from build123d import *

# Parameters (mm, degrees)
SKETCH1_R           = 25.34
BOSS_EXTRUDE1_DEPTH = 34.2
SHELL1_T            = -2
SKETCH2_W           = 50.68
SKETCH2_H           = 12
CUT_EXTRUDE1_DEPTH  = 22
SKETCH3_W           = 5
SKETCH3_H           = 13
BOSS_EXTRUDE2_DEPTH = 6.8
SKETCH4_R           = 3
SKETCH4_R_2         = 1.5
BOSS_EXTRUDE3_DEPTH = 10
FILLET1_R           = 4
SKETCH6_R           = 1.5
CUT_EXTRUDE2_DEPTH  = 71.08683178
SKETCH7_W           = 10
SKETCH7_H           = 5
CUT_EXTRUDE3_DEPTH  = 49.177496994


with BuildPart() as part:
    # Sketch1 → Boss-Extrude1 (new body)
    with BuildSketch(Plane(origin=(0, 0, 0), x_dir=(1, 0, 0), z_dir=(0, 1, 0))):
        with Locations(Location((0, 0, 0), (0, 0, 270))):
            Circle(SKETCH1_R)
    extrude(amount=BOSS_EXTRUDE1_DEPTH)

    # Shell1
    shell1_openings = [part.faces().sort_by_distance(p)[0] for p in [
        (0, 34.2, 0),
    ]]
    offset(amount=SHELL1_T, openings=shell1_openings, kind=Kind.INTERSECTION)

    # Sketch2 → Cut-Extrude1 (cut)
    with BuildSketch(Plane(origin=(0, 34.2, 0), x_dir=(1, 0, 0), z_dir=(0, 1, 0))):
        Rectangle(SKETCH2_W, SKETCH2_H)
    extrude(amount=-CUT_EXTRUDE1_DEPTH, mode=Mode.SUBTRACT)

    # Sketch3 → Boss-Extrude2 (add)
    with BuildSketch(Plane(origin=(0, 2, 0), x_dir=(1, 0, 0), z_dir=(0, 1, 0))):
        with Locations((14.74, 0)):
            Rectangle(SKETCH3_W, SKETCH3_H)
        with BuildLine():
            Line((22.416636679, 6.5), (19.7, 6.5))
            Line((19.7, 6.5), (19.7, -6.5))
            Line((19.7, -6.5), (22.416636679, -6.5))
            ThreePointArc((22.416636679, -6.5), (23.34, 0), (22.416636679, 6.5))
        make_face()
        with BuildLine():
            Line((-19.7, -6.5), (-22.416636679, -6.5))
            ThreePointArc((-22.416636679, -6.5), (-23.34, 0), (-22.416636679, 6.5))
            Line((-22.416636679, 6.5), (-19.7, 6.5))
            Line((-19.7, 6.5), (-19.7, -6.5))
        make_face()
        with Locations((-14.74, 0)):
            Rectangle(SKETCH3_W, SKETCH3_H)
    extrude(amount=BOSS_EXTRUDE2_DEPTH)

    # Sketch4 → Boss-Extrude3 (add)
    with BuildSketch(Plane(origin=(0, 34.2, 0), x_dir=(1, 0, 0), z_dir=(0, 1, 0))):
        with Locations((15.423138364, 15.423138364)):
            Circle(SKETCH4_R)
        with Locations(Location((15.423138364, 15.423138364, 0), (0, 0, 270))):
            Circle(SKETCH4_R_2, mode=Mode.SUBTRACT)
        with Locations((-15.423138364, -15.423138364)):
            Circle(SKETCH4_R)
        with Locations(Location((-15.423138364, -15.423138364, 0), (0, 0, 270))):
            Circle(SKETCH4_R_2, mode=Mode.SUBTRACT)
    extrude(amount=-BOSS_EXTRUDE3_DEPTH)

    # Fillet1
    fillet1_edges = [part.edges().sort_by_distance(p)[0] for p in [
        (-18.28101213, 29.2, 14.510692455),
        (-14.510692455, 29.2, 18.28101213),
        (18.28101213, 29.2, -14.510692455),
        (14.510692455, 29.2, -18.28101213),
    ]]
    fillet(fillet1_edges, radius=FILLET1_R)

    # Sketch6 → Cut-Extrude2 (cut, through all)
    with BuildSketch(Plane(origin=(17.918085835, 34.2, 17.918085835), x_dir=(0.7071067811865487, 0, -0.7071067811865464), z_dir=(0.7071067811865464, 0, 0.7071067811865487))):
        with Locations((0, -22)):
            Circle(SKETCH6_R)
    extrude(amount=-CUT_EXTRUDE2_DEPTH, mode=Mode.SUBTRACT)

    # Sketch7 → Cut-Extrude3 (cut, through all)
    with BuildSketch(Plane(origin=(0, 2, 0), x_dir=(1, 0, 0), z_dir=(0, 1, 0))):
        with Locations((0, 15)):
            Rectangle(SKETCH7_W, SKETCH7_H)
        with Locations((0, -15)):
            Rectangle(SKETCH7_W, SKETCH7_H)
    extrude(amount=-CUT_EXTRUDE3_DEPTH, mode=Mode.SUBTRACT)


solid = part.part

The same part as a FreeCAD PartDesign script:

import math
import FreeCAD as App
import Part
import Sketcher

V = App.Vector


def edges_at(feature, points):
    """Names of the edges that pass closest to the given points."""
    edges = feature.Shape.Edges
    near = lambda p: min(range(len(edges)), key=lambda i: edges[i].distToShape(Part.Vertex(*p))[0])
    return sorted({f"Edge{near(p) + 1}" for p in points})


def faces_at(feature, points):
    """Names of the faces that lie closest to the given points."""
    faces = feature.Shape.Faces
    near = lambda p: min(range(len(faces)), key=lambda i: faces[i].distToShape(Part.Vertex(*p))[0])
    return sorted({f"Face{near(p) + 1}" for p in points})


def add_polygon(sketch, points):
    """Adds a closed chain of lines whose ends are joined by coincident constraints."""
    first, n = sketch.GeometryCount, len(points)
    for a, b in zip(points, points[1:] + points[:1]):
        sketch.addGeometry(Part.LineSegment(App.Vector(*a, 0), App.Vector(*b, 0)), False)
    for i in range(n):
        sketch.addConstraint(Sketcher.Constraint("Coincident", first + i, 2, first + (i + 1) % n, 1))

doc = App.newDocument("Part")
params = doc.addObject("Spreadsheet::Sheet", "Params")
for row, (alias, value) in enumerate([
    ("sketch1_diameter", "50.68 mm"),
    ("pad1_length", "34.2 mm"),
    ("thickness_wall", "2 mm"),
    ("sketch2_height", "12 mm"),
    ("sketch2_width", "50.68 mm"),
    ("pocket1_length", "22 mm"),
    ("sketch3_width", "5 mm"),
    ("sketch3_height", "13 mm"),
    ("sketch3_radius", "23.34 mm"),
    ("pad2_length", "6.8 mm"),
    ("sketch4_diameter", "6 mm"),
    ("sketch4_diameter2", "3 mm"),
    ("pad3_length", "10 mm"),
    ("fillet_radius", "4 mm"),
    ("sketch5_diameter", "3 mm"),
    ("sketch6_width", "10 mm"),
    ("sketch6_height", "5 mm"),
], start=1):
    params.set(f"A{row}", alias)
    params.set(f"B{row}", "=" + value)
    params.setAlias(f"B{row}", alias)

body = doc.addObject("PartDesign::Body", "Body")

# Sketch on XZ plane
sketch1 = doc.addObject("Sketcher::SketchObject", "Sketch")
body.addObject(sketch1)
sketch1.AttachmentSupport = (doc.XZ_Plane, [""])
sketch1.MapMode = "FlatFace"
sketch1.addGeometry(Part.Circle(V(0, 0, 0), V(0, 0, 1), 25), False)
sketch1.addConstraint(Sketcher.Constraint("Coincident", 0, 3, -1, 1))
sketch1.addConstraint(Sketcher.Constraint("Diameter", 0, 50.68))
sketch1.setExpression("Constraints[1]", "Params.sketch1_diameter")
pad1 = doc.addObject("PartDesign::Pad", "Pad")
body.addObject(pad1)
pad1.Profile = sketch1
pad1.setExpression("Length", "Params.pad1_length")
pad1.Reversed = True
doc.recompute()

thickness = doc.addObject("PartDesign::Thickness", "Thickness")
body.addObject(thickness)
thickness.Base = (pad1, faces_at(pad1, [(0, 34.2, 0)]))
thickness.setExpression("Value", "Params.thickness_wall")
thickness.Reversed = True
thickness.Join = "Intersection"

# Sketch on XZ plane
sketch2 = doc.addObject("Sketcher::SketchObject", "Sketch001")
body.addObject(sketch2)
sketch2.AttachmentSupport = (doc.XZ_Plane, [""])
sketch2.MapMode = "FlatFace"
sketch2.AttachmentOffset = App.Placement(V(0, 0, -34.2), App.Rotation())
add_polygon(sketch2, [(-25, -6), (-25, 6), (25, 6), (25, -6)])  # lines 0-3
sketch2.addConstraint(Sketcher.Constraint("Vertical", 0))
sketch2.addConstraint(Sketcher.Constraint("Horizontal", 1))
sketch2.addConstraint(Sketcher.Constraint("Vertical", 2))
sketch2.addConstraint(Sketcher.Constraint("Horizontal", 3))
sketch2.addConstraint(Sketcher.Constraint("Symmetric", 0, 2, 2, 2, -1, 1))
sketch2.addConstraint(Sketcher.Constraint("DistanceY", 0, 1, 0, 2, 12.0))
sketch2.addConstraint(Sketcher.Constraint("DistanceX", 1, 1, 1, 2, 50.68))
sketch2.setExpression("Constraints[9]", "Params.sketch2_height")
sketch2.setExpression("Constraints[10]", "Params.sketch2_width")
pocket1 = doc.addObject("PartDesign::Pocket", "Pocket")
body.addObject(pocket1)
pocket1.Profile = sketch2
pocket1.setExpression("Length", "Params.pocket1_length")
pocket1.Reversed = True

# Sketch on XZ plane
sketch3 = doc.addObject("Sketcher::SketchObject", "Sketch002")
body.addObject(sketch3)
sketch3.AttachmentSupport = (doc.XZ_Plane, [""])
sketch3.MapMode = "FlatFace"
sketch3.AttachmentOffset = App.Placement(V(0, 0, -2), App.Rotation())
add_polygon(sketch3, [(12.2, -6.5), (12.2, 6.5), (17.2, 6.5), (17.2, -6.5)])  # lines 0-3
sketch3.addGeometry(Part.LineSegment(V(22.4, -6.5, 0), V(19.7, -6.5, 0)), False)  # 4
sketch3.addGeometry(Part.LineSegment(V(19.7, -6.5, 0), V(19.7, 6.5, 0)), False)  # 5
sketch3.addGeometry(Part.LineSegment(V(19.7, 6.5, 0), V(22.4, 6.5, 0)), False)  # 6
sketch3.addGeometry(Part.ArcOfCircle(Part.Circle(V(0, 0, 0), V(0, 0, 1), 23.3), math.radians(-16), math.radians(16)), False)  # 7
sketch3.addGeometry(Part.LineSegment(V(-22.4, 6.5, 0), V(-19.7, 6.5, 0)), False)  # 8
sketch3.addGeometry(Part.LineSegment(V(-19.7, 6.5, 0), V(-19.7, -6.5, 0)), False)  # 9
sketch3.addGeometry(Part.LineSegment(V(-19.7, -6.5, 0), V(-22.4, -6.5, 0)), False)  # 10
sketch3.addGeometry(Part.ArcOfCircle(Part.Circle(V(0, 0, 0), V(0, 0, 1), 23.3), math.radians(164), math.radians(196)), False)  # 11
add_polygon(sketch3, [(-17.2, -6.5), (-17.2, 6.5), (-12.2, 6.5), (-12.2, -6.5)])  # lines 12-15
sketch3.addConstraint(Sketcher.Constraint("Coincident", 4, 2, 5, 1))
sketch3.addConstraint(Sketcher.Constraint("Coincident", 5, 2, 6, 1))
sketch3.addConstraint(Sketcher.Constraint("Coincident", 6, 2, 7, 2))
sketch3.addConstraint(Sketcher.Constraint("Coincident", 7, 1, 4, 1))
sketch3.addConstraint(Sketcher.Constraint("Coincident", 8, 2, 9, 1))
sketch3.addConstraint(Sketcher.Constraint("Coincident", 9, 2, 10, 1))
sketch3.addConstraint(Sketcher.Constraint("Coincident", 10, 2, 11, 2))
sketch3.addConstraint(Sketcher.Constraint("Coincident", 11, 1, 8, 1))
sketch3.addConstraint(Sketcher.Constraint("Vertical", 0))
sketch3.addConstraint(Sketcher.Constraint("Horizontal", 1))
sketch3.addConstraint(Sketcher.Constraint("Vertical", 2))
sketch3.addConstraint(Sketcher.Constraint("Horizontal", 3))
sketch3.addConstraint(Sketcher.Constraint("Horizontal", 4))
sketch3.addConstraint(Sketcher.Constraint("Vertical", 5))
sketch3.addConstraint(Sketcher.Constraint("Horizontal", 6))
sketch3.addConstraint(Sketcher.Constraint("Horizontal", 8))
sketch3.addConstraint(Sketcher.Constraint("Vertical", 9))
sketch3.addConstraint(Sketcher.Constraint("Horizontal", 10))
sketch3.addConstraint(Sketcher.Constraint("Vertical", 12))
sketch3.addConstraint(Sketcher.Constraint("Horizontal", 13))
sketch3.addConstraint(Sketcher.Constraint("Vertical", 14))
sketch3.addConstraint(Sketcher.Constraint("Horizontal", 15))
sketch3.addConstraint(Sketcher.Constraint("Coincident", 7, 3, -1, 1))
sketch3.addConstraint(Sketcher.Constraint("Coincident", 11, 3, -1, 1))
sketch3.addConstraint(Sketcher.Constraint("Equal", 7, 11))
sketch3.addConstraint(Sketcher.Constraint("Symmetric", 4, 2, 8, 2, -1, 1))
sketch3.addConstraint(Sketcher.Constraint("Symmetric", 2, 2, 12, 2, -1, 1))
sketch3.addConstraint(Sketcher.Constraint("Symmetric", 0, 2, 14, 2, -1, 1))
sketch3.addConstraint(Sketcher.Constraint("Horizontal", 3, 2, 4, 2))
sketch3.addConstraint(Sketcher.Constraint("Horizontal", 1, 2, 5, 2))
sketch3.addConstraint(Sketcher.Constraint("Horizontal", 6, 2, 8, 2))
sketch3.addConstraint(Sketcher.Constraint("Horizontal", 7, 1, 9, 2))
sketch3.addConstraint(Sketcher.Constraint("DistanceX", 1, 1, 1, 2, 5.0))
sketch3.addConstraint(Sketcher.Constraint("DistanceY", 0, 1, 0, 2, 13.0))
sketch3.addConstraint(Sketcher.Constraint("Radius", 7, 23.34))
sketch3.addConstraint(Sketcher.Constraint("DistanceX", -1, 1, 4, 2, 19.7))
sketch3.addConstraint(Sketcher.Constraint("DistanceX", -1, 1, 0, 2, 12.24))
sketch3.setExpression("Constraints[40]", "Params.sketch3_width")
sketch3.setExpression("Constraints[41]", "Params.sketch3_height")
sketch3.setExpression("Constraints[42]", "Params.sketch3_radius")
pad2 = doc.addObject("PartDesign::Pad", "Pad001")
body.addObject(pad2)
pad2.Profile = sketch3
pad2.setExpression("Length", "Params.pad2_length")
pad2.Reversed = True

# Sketch on XZ plane
sketch4 = doc.addObject("Sketcher::SketchObject", "Sketch003")
body.addObject(sketch4)
sketch4.AttachmentSupport = (doc.XZ_Plane, [""])
sketch4.MapMode = "FlatFace"
sketch4.AttachmentOffset = App.Placement(V(0, 0, -34.2), App.Rotation())
sketch4.addGeometry(Part.Circle(V(15.4, -15.4, 0), V(0, 0, 1), 3), False)
sketch4.addGeometry(Part.Circle(V(15.4, -15.4, 0), V(0, 0, 1), 1.5), False)
sketch4.addGeometry(Part.Circle(V(-15.4, 15.4, 0), V(0, 0, 1), 3), False)
sketch4.addGeometry(Part.Circle(V(-15.4, 15.4, 0), V(0, 0, 1), 1.5), False)
sketch4.addConstraint(Sketcher.Constraint("Coincident", 1, 3, 0, 3))
sketch4.addConstraint(Sketcher.Constraint("Coincident", 3, 3, 2, 3))
sketch4.addConstraint(Sketcher.Constraint("Equal", 0, 2))
sketch4.addConstraint(Sketcher.Constraint("Equal", 1, 3))
sketch4.addConstraint(Sketcher.Constraint("Symmetric", 0, 3, 2, 3, -1, 1))
sketch4.addConstraint(Sketcher.Constraint("Diameter", 0, 6.0))
sketch4.addConstraint(Sketcher.Constraint("Diameter", 1, 3.0))
sketch4.addConstraint(Sketcher.Constraint("DistanceX", -1, 1, 0, 3, 15.423138))
sketch4.addConstraint(Sketcher.Constraint("DistanceY", 0, 3, -1, 1, 15.423138))
sketch4.setExpression("Constraints[5]", "Params.sketch4_diameter")
sketch4.setExpression("Constraints[6]", "Params.sketch4_diameter2")
pad3 = doc.addObject("PartDesign::Pad", "Pad002")
body.addObject(pad3)
pad3.Profile = sketch4
pad3.setExpression("Length", "Params.pad3_length")
doc.recompute()

fillet = doc.addObject("PartDesign::Fillet", "Fillet")
body.addObject(fillet)
fillet.Base = (pad3, edges_at(pad3, [
    (-18.281, 29.2, 14.511),
    (-14.511, 29.2, 18.281),
    (18.281, 29.2, -14.511),
    (14.511, 29.2, -18.281),
]))
fillet.setExpression("Radius", "Params.fillet_radius")

# Sketch on an angled plane
sketch5 = doc.addObject("Sketcher::SketchObject", "Sketch004")
body.addObject(sketch5)
sketch5.Placement = App.Placement(V(17.918086, 34.2, 17.918086), App.Rotation(V(0.707106781, 0, -0.707106781), V(0, 0.999999999, 0), V(0.707106781, 0, 0.707106781), "ZXY"))
sketch5.addGeometry(Part.Circle(V(0, -22, 0), V(0, 0, 1), 1.5), False)
sketch5.addConstraint(Sketcher.Constraint("PointOnObject", 0, 3, -2))
sketch5.addConstraint(Sketcher.Constraint("Diameter", 0, 3.0))
sketch5.addConstraint(Sketcher.Constraint("DistanceY", 0, 3, -1, 1, 22.0))
sketch5.setExpression("Constraints[1]", "Params.sketch5_diameter")
pocket2 = doc.addObject("PartDesign::Pocket", "Pocket001")
body.addObject(pocket2)
pocket2.Profile = sketch5
pocket2.Type = "ThroughAll"

# Sketch on XZ plane
sketch6 = doc.addObject("Sketcher::SketchObject", "Sketch005")
body.addObject(sketch6)
sketch6.AttachmentSupport = (doc.XZ_Plane, [""])
sketch6.MapMode = "FlatFace"
sketch6.AttachmentOffset = App.Placement(V(0, 0, -2), App.Rotation())
add_polygon(sketch6, [(-5, -18), (-5, -12), (5, -12), (5, -18)])  # lines 0-3
add_polygon(sketch6, [(-5, 12), (-5, 18), (5, 18), (5, 12)])  # lines 4-7
sketch6.addConstraint(Sketcher.Constraint("Vertical", 0))
sketch6.addConstraint(Sketcher.Constraint("Horizontal", 1))
sketch6.addConstraint(Sketcher.Constraint("Vertical", 2))
sketch6.addConstraint(Sketcher.Constraint("Horizontal", 3))
sketch6.addConstraint(Sketcher.Constraint("Vertical", 4))
sketch6.addConstraint(Sketcher.Constraint("Horizontal", 5))
sketch6.addConstraint(Sketcher.Constraint("Vertical", 6))
sketch6.addConstraint(Sketcher.Constraint("Horizontal", 7))
sketch6.addConstraint(Sketcher.Constraint("Symmetric", 2, 2, 4, 2, -1, 1))
sketch6.addConstraint(Sketcher.Constraint("Symmetric", 0, 2, 6, 2, -1, 1))
sketch6.addConstraint(Sketcher.Constraint("Vertical", 3, 2, 4, 2))
sketch6.addConstraint(Sketcher.Constraint("DistanceX", 1, 1, 1, 2, 10.0))
sketch6.addConstraint(Sketcher.Constraint("DistanceY", 0, 1, 0, 2, 5.0))
sketch6.addConstraint(Sketcher.Constraint("DistanceY", 0, 2, 4, 2, 30.0))
sketch6.setExpression("Constraints[19]", "Params.sketch6_width")
sketch6.setExpression("Constraints[20]", "Params.sketch6_height")
pocket3 = doc.addObject("PartDesign::Pocket", "Pocket002")
body.addObject(pocket3)
pocket3.Profile = sketch6
pocket3.Type = "ThroughAll"
pocket3.Reversed = True

doc.recompute()
